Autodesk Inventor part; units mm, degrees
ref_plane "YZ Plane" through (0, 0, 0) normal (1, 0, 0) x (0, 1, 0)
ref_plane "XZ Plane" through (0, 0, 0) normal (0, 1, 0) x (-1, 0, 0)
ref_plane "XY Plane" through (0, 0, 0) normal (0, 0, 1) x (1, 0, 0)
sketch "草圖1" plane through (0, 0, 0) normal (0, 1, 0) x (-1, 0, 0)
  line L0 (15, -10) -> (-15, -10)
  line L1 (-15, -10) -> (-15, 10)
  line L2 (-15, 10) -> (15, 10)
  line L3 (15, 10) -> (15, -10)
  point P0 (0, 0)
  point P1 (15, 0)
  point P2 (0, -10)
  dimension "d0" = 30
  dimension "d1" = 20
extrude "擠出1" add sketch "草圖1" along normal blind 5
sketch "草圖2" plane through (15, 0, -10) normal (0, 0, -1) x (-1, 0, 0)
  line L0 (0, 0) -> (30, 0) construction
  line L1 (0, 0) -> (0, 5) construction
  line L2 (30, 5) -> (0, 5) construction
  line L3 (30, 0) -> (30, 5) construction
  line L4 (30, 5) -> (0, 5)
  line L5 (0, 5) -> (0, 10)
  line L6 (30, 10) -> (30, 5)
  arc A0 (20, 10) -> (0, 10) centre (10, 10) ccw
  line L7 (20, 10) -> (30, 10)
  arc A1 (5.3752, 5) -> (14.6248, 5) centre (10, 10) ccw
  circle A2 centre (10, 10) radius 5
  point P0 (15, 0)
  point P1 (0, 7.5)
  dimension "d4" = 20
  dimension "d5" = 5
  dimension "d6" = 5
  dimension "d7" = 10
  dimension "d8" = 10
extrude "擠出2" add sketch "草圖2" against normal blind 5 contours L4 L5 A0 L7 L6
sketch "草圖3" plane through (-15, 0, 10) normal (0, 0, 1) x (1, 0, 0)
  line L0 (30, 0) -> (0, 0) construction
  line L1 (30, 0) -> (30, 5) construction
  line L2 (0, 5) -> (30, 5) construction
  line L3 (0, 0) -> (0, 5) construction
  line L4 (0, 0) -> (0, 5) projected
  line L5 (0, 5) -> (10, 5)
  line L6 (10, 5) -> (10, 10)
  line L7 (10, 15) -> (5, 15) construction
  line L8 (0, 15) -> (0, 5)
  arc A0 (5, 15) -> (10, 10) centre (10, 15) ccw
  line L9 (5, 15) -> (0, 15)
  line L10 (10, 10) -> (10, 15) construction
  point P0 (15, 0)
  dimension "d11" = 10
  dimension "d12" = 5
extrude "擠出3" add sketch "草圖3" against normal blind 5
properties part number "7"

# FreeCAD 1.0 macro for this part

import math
import FreeCAD as App
import Part
import Sketcher

doc = App.newDocument("Part")
body = doc.addObject("PartDesign::Body", "Body")

sketch1 = body.newObject("Sketcher::SketchObject", "Sketch")
sketch1.AttachmentSupport = (doc.getObject("XZ_Plane"), [""])
sketch1.MapMode = "FlatFace"
sketch1.addGeometry([
    Part.LineSegment(App.Vector(15, -10, 0), App.Vector(-15, -10, 0)),
    Part.LineSegment(App.Vector(-15, -10, 0), App.Vector(-15, 10, 0)),
    Part.LineSegment(App.Vector(-15, 10, 0), App.Vector(15, 10, 0)),
    Part.LineSegment(App.Vector(15, 10, 0), App.Vector(15, -10, 0)),
], False)
sketch1.addConstraint([
    Sketcher.Constraint("Coincident", 0, 2, 1, 1),
    Sketcher.Constraint("Coincident", 1, 2, 2, 1),
    Sketcher.Constraint("Coincident", 2, 2, 3, 1),
    Sketcher.Constraint("Coincident", 3, 2, 0, 1),
    Sketcher.Constraint("Horizontal", 0),
    Sketcher.Constraint("Vertical", 1),
    Sketcher.Constraint("Horizontal", 2),
    Sketcher.Constraint("Vertical", 3),
    Sketcher.Constraint("Symmetric", 0, 2, 2, 2, -1, 1),
    Sketcher.Constraint("DistanceX", 0, 2, 0, 1, 30.0),
    Sketcher.Constraint("DistanceY", 1, 1, 1, 2, 20.0),
])
pad1 = body.newObject("PartDesign::Pad", "Pad")
pad1.Profile = sketch1
pad1.Length = 5
pad1.Reversed = True

sketch2 = body.newObject("Sketcher::SketchObject", "Sketch001")
sketch2.AttachmentSupport = (doc.getObject("XY_Plane"), [""])
sketch2.MapMode = "FlatFace"
sketch2.AttachmentOffset = App.Placement(App.Vector(0, 0, -10), App.Rotation())
sketch2.addGeometry([
    Part.LineSegment(App.Vector(5, 5, 0), App.Vector(-15, 5, 0)),
    Part.LineSegment(App.Vector(-15, 5, 0), App.Vector(-15, 10, 0)),
    Part.LineSegment(App.Vector(-15, 10, 0), App.Vector(-5, 10, 0)),
    Part.ArcOfCircle(Part.Circle(App.Vector(5, 10, 0), App.Vector(0, 0, 1), 10), math.radians(0), math.radians(180)),
    Part.LineSegment(App.Vector(15, 10, 0), App.Vector(15, 5, 0)),
    Part.LineSegment(App.Vector(15, 5, 0), App.Vector(5, 5, 0)),
    Part.Circle(App.Vector(5, 10, 0), App.Vector(0, 0, 1), 5),
], False)
sketch2.addConstraint([
    Sketcher.Constraint("Coincident", 0, 2, 1, 1),
    Sketcher.Constraint("Coincident", 1, 2, 2, 1),
    Sketcher.Constraint("Coincident", 2, 2, 3, 2),
    Sketcher.Constraint("Tangent", 3, 1, 4, 1),
    Sketcher.Constraint("Coincident", 4, 2, 5, 1),
    Sketcher.Constraint("Coincident", 5, 2, 0, 1),
    Sketcher.Constraint("Horizontal", 0),
    Sketcher.Constraint("Vertical", 1),
    Sketcher.Constraint("Horizontal", 2),
    Sketcher.Constraint("Vertical", 4),
    Sketcher.Constraint("Horizontal", 5),
    Sketcher.Constraint("Coincident", 6, 3, 3, 3),
    Sketcher.Constraint("Symmetric", 1, 2, 3, 1, -2),
    Sketcher.Constraint("Vertical", 6, 3, 5, 2),
    Sketcher.Constraint("Equal", 2, 5),
    Sketcher.Constraint("Diameter", 6, 10.0),
    Sketcher.Constraint("Radius", 3, 10.0),
    Sketcher.Constraint("DistanceY", 1, 1, 1, 2, 5.0),
    Sketcher.Constraint("DistanceY", -1, 1, 3, 3, 10.0),
])
pad2 = body.newObject("PartDesign::Pad", "Pad001")
pad2.Profile = sketch2
pad2.Length = 5

sketch3 = body.newObject("Sketcher::SketchObject", "Sketch002")
sketch3.AttachmentSupport = (doc.getObject("XY_Plane"), [""])
sketch3.MapMode = "FlatFace"
sketch3.AttachmentOffset = App.Placement(App.Vector(0, 0, 10), App.Rotation())
sketch3.addGeometry([
    Part.LineSegment(App.Vector(-15, 15, 0), App.Vector(-15, 5, 0)),
    Part.LineSegment(App.Vector(-15, 5, 0), App.Vector(-5, 5, 0)),
    Part.LineSegment(App.Vector(-5, 5, 0), App.Vector(-5, 10, 0)),
    Part.ArcOfCircle(Part.Circle(App.Vector(-5, 15, 0), App.Vector(0, 0, 1), 5), math.radians(180), math.radians(270)),
    Part.LineSegment(App.Vector(-10, 15, 0), App.Vector(-15, 15, 0)),
], False)
sketch3.addConstraint([
    Sketcher.Constraint("Coincident", 0, 2, 1, 1),
    Sketcher.Constraint("Coincident", 1, 2, 2, 1),
    Sketcher.Constraint("Coincident", 2, 2, 3, 2),
    Sketcher.Constraint("Coincident", 3, 1, 4, 1),
    Sketcher.Constraint("Coincident", 4, 2, 0, 1),
    Sketcher.Constraint("Vertical", 0),
    Sketcher.Constraint("Horizontal", 1),
    Sketcher.Constraint("Vertical", 2),
    Sketcher.Constraint("Horizontal", 4),
    Sketcher.Constraint("Vertical", 3, 3, 1, 2),
    Sketcher.Constraint("Equal", 1, 0),
    Sketcher.Constraint("Equal", 4, 2),
    Sketcher.Constraint("Radius", 3, 5.0),
    Sketcher.Constraint("DistanceX", 1, 1, 1, 2, 10.0),
    Sketcher.Constraint("DistanceX", 3, 3, -1, 1, 5.0),
    Sketcher.Constraint("DistanceY", -1, 1, 0, 2, 5.0),
])
pad3 = body.newObject("PartDesign::Pad", "Pad002")
pad3.Profile = sketch3
pad3.Length = 5
pad3.Reversed = True

doc.recompute()
